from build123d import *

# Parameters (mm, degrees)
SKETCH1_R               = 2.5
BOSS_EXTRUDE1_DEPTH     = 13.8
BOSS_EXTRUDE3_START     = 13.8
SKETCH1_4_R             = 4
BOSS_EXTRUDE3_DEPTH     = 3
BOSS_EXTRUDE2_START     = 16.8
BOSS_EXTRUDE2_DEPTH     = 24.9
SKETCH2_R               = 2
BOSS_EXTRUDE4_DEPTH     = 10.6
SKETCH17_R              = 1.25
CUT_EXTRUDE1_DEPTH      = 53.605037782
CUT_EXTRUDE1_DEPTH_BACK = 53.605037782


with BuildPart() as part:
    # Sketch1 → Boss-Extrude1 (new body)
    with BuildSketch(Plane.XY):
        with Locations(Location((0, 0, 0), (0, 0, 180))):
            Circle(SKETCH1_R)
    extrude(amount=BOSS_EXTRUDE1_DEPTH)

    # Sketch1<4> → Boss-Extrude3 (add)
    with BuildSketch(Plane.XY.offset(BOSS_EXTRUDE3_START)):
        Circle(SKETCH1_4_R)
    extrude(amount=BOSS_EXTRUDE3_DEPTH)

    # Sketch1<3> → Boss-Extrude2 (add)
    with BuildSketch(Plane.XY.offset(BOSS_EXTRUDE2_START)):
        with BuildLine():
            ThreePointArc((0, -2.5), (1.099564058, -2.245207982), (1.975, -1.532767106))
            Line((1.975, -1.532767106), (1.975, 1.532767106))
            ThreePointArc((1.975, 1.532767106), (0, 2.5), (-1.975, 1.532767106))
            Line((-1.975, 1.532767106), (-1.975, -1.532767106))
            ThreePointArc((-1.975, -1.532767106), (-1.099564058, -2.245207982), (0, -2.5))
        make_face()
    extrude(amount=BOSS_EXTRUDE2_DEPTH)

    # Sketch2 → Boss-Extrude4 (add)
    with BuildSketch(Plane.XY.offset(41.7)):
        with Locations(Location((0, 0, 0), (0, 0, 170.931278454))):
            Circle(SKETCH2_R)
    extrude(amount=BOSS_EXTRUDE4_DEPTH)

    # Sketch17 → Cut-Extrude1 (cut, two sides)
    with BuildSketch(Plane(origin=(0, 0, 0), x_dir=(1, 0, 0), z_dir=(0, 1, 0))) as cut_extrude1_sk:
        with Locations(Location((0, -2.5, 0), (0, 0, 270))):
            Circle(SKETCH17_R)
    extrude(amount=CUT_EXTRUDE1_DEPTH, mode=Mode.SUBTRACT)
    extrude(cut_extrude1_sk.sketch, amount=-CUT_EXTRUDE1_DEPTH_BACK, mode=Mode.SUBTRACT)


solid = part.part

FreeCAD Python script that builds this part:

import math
import FreeCAD as App
import Part
import Sketcher
from FreeCAD import Vector
Q = App.Units.Quantity

doc = App.newDocument("Part")
params = doc.addObject("Spreadsheet::Sheet", "Params")
for row, (alias, value) in enumerate([
    ("sketch1_diameter", "5 mm"),
    ("pad1_length", "13.8 mm"),
    ("sketch2_diameter", "8 mm"),
    ("pad2_length", "3 mm"),
    ("sketch3_radius", "2.5 mm"),
    ("pad3_length", "24.9 mm"),
    ("sketch4_diameter", "4 mm"),
    ("pad4_length", "10.6 mm"),
    ("sketch5_diameter", "2.5 mm"),
], start=1):
    params.set(f"A{row}", alias)
    params.set(f"B{row}", "=" + value)
    params.setAlias(f"B{row}", alias)

body = doc.addObject("PartDesign::Body", "Body")

sketch1 = body.newObject("Sketcher::SketchObject", "Sketch")
sketch1.AttachmentSupport = (doc.getObject("XY_Plane"), [""])
sketch1.MapMode = "FlatFace"
sketch1.addGeometry(Part.Circle(Vector(0, 0, 0), Vector(0, 0, 1), 2.5), False)
sketch1.addConstraint([
    Sketcher.Constraint("Coincident", 0, 3, -1, 1),
    Sketcher.Constraint("Diameter", 0, Q("5 mm")),
])
sketch1.setExpression("Constraints[1]", "Params.sketch1_diameter")
pad1 = body.newObject("PartDesign::Pad", "Pad")
pad1.Profile = sketch1
pad1.setExpression("Length", "Params.pad1_length")

sketch2 = body.newObject("Sketcher::SketchObject", "Sketch001")
sketch2.AttachmentSupport = (doc.getObject("XY_Plane"), [""])
sketch2.MapMode = "FlatFace"
sketch2.AttachmentOffset = App.Placement(Vector(0, 0, 13.8), App.Rotation())
sketch2.addGeometry(Part.Circle(Vector(0, 0, 0), Vector(0, 0, 1), 4), False)
sketch2.addConstraint([
    Sketcher.Constraint("Coincident", 0, 3, -1, 1),
    Sketcher.Constraint("Diameter", 0, Q("8 mm")),
])
sketch2.setExpression("Constraints[1]", "Params.sketch2_diameter")
pad2 = body.newObject("PartDesign::Pad", "Pad001")
pad2.Profile = sketch2
pad2.setExpression("Length", "Params.pad2_length")

sketch3 = body.newObject("Sketcher::SketchObject", "Sketch002")
sketch3.AttachmentSupport = (doc.getObject("XY_Plane"), [""])
sketch3.MapMode = "FlatFace"
sketch3.AttachmentOffset = App.Placement(Vector(0, 0, 16.8), App.Rotation())
sketch3.addGeometry([
    Part.ArcOfCircle(Part.Circle(Vector(0, 0, 0), Vector(0, 0, 1), 2.5), math.radians(-90), math.radians(-37.814489)),
    Part.LineSegment(Vector(1.975, -1.532767, 0), Vector(1.975, 1.532767, 0)),
    Part.ArcOfCircle(Part.Circle(Vector(0, 0, 0), Vector(0, 0, 1), 2.5), math.radians(37.814489), math.radians(142.185511)),
    Part.LineSegment(Vector(-1.975, 1.532767, 0), Vector(-1.975, -1.532767, 0)),
    Part.ArcOfCircle(Part.Circle(Vector(0, 0, 0), Vector(0, 0, 1), 2.5), math.radians(-142.185511), math.radians(-90)),
], False)
sketch3.addConstraint([
    Sketcher.Constraint("Coincident", 0, 2, 1, 1),
    Sketcher.Constraint("Coincident", 1, 2, 2, 1),
    Sketcher.Constraint("Coincident", 2, 2, 3, 1),
    Sketcher.Constraint("Coincident", 3, 2, 4, 1),
    Sketcher.Constraint("Tangent", 4, 2, 0, 1),
    Sketcher.Constraint("Vertical", 1),
    Sketcher.Constraint("Vertical", 3),
    Sketcher.Constraint("Coincident", 0, 3, -1, 1),
    Sketcher.Constraint("Coincident", 2, 3, -1, 1),
    Sketcher.Constraint("Equal", 0, 2),
    Sketcher.Constraint("Equal", 2, 4),
    Sketcher.Constraint("PointOnObject", 4, 2, -2),
    Sketcher.Constraint("Horizontal", 1, 2, 2, 2),
    Sketcher.Constraint("Radius", 0, Q("2.5 mm")),
    Sketcher.Constraint("DistanceX", 2, 2, 1, 2, Q("3.95 mm")),
])
sketch3.setExpression("Constraints[13]", "Params.sketch3_radius")
pad3 = body.newObject("PartDesign::Pad", "Pad002")
pad3.Profile = sketch3
pad3.setExpression("Length", "Params.pad3_length")

sketch4 = body.newObject("Sketcher::SketchObject", "Sketch003")
sketch4.AttachmentSupport = (doc.getObject("XY_Plane"), [""])
sketch4.MapMode = "FlatFace"
sketch4.AttachmentOffset = App.Placement(Vector(0, 0, 41.7), App.Rotation())
sketch4.addGeometry(Part.Circle(Vector(0, 0, 0), Vector(0, 0, 1), 2), False)
sketch4.addConstraint([
    Sketcher.Constraint("Coincident", 0, 3, -1, 1),
    Sketcher.Constraint("Diameter", 0, Q("4 mm")),
])
sketch4.setExpression("Constraints[1]", "Params.sketch4_diameter")
pad4 = body.newObject("PartDesign::Pad", "Pad003")
pad4.Profile = sketch4
pad4.setExpression("Length", "Params.pad4_length")

sketch5 = body.newObject("Sketcher::SketchObject", "Sketch004")
sketch5.AttachmentSupport = (doc.getObject("XZ_Plane"), [""])
sketch5.MapMode = "FlatFace"
sketch5.addGeometry(Part.Circle(Vector(0, 2.5, 0), Vector(0, 0, 1), 1.25), False)
sketch5.addConstraint([
    Sketcher.Constraint("PointOnObject", 0, 3, -2),
    Sketcher.Constraint("Diameter", 0, Q("2.5 mm")),
    Sketcher.Constraint("DistanceY", -1, 1, 0, 3, Q("2.5 mm")),
])
sketch5.setExpression("Constraints[1]", "Params.sketch5_diameter")
pocket1 = body.newObject("PartDesign::Pocket", "Pocket")
pocket1.Profile = sketch5
pocket1.Type = "ThroughAll"
pocket1.Midplane = True

doc.recompute()
